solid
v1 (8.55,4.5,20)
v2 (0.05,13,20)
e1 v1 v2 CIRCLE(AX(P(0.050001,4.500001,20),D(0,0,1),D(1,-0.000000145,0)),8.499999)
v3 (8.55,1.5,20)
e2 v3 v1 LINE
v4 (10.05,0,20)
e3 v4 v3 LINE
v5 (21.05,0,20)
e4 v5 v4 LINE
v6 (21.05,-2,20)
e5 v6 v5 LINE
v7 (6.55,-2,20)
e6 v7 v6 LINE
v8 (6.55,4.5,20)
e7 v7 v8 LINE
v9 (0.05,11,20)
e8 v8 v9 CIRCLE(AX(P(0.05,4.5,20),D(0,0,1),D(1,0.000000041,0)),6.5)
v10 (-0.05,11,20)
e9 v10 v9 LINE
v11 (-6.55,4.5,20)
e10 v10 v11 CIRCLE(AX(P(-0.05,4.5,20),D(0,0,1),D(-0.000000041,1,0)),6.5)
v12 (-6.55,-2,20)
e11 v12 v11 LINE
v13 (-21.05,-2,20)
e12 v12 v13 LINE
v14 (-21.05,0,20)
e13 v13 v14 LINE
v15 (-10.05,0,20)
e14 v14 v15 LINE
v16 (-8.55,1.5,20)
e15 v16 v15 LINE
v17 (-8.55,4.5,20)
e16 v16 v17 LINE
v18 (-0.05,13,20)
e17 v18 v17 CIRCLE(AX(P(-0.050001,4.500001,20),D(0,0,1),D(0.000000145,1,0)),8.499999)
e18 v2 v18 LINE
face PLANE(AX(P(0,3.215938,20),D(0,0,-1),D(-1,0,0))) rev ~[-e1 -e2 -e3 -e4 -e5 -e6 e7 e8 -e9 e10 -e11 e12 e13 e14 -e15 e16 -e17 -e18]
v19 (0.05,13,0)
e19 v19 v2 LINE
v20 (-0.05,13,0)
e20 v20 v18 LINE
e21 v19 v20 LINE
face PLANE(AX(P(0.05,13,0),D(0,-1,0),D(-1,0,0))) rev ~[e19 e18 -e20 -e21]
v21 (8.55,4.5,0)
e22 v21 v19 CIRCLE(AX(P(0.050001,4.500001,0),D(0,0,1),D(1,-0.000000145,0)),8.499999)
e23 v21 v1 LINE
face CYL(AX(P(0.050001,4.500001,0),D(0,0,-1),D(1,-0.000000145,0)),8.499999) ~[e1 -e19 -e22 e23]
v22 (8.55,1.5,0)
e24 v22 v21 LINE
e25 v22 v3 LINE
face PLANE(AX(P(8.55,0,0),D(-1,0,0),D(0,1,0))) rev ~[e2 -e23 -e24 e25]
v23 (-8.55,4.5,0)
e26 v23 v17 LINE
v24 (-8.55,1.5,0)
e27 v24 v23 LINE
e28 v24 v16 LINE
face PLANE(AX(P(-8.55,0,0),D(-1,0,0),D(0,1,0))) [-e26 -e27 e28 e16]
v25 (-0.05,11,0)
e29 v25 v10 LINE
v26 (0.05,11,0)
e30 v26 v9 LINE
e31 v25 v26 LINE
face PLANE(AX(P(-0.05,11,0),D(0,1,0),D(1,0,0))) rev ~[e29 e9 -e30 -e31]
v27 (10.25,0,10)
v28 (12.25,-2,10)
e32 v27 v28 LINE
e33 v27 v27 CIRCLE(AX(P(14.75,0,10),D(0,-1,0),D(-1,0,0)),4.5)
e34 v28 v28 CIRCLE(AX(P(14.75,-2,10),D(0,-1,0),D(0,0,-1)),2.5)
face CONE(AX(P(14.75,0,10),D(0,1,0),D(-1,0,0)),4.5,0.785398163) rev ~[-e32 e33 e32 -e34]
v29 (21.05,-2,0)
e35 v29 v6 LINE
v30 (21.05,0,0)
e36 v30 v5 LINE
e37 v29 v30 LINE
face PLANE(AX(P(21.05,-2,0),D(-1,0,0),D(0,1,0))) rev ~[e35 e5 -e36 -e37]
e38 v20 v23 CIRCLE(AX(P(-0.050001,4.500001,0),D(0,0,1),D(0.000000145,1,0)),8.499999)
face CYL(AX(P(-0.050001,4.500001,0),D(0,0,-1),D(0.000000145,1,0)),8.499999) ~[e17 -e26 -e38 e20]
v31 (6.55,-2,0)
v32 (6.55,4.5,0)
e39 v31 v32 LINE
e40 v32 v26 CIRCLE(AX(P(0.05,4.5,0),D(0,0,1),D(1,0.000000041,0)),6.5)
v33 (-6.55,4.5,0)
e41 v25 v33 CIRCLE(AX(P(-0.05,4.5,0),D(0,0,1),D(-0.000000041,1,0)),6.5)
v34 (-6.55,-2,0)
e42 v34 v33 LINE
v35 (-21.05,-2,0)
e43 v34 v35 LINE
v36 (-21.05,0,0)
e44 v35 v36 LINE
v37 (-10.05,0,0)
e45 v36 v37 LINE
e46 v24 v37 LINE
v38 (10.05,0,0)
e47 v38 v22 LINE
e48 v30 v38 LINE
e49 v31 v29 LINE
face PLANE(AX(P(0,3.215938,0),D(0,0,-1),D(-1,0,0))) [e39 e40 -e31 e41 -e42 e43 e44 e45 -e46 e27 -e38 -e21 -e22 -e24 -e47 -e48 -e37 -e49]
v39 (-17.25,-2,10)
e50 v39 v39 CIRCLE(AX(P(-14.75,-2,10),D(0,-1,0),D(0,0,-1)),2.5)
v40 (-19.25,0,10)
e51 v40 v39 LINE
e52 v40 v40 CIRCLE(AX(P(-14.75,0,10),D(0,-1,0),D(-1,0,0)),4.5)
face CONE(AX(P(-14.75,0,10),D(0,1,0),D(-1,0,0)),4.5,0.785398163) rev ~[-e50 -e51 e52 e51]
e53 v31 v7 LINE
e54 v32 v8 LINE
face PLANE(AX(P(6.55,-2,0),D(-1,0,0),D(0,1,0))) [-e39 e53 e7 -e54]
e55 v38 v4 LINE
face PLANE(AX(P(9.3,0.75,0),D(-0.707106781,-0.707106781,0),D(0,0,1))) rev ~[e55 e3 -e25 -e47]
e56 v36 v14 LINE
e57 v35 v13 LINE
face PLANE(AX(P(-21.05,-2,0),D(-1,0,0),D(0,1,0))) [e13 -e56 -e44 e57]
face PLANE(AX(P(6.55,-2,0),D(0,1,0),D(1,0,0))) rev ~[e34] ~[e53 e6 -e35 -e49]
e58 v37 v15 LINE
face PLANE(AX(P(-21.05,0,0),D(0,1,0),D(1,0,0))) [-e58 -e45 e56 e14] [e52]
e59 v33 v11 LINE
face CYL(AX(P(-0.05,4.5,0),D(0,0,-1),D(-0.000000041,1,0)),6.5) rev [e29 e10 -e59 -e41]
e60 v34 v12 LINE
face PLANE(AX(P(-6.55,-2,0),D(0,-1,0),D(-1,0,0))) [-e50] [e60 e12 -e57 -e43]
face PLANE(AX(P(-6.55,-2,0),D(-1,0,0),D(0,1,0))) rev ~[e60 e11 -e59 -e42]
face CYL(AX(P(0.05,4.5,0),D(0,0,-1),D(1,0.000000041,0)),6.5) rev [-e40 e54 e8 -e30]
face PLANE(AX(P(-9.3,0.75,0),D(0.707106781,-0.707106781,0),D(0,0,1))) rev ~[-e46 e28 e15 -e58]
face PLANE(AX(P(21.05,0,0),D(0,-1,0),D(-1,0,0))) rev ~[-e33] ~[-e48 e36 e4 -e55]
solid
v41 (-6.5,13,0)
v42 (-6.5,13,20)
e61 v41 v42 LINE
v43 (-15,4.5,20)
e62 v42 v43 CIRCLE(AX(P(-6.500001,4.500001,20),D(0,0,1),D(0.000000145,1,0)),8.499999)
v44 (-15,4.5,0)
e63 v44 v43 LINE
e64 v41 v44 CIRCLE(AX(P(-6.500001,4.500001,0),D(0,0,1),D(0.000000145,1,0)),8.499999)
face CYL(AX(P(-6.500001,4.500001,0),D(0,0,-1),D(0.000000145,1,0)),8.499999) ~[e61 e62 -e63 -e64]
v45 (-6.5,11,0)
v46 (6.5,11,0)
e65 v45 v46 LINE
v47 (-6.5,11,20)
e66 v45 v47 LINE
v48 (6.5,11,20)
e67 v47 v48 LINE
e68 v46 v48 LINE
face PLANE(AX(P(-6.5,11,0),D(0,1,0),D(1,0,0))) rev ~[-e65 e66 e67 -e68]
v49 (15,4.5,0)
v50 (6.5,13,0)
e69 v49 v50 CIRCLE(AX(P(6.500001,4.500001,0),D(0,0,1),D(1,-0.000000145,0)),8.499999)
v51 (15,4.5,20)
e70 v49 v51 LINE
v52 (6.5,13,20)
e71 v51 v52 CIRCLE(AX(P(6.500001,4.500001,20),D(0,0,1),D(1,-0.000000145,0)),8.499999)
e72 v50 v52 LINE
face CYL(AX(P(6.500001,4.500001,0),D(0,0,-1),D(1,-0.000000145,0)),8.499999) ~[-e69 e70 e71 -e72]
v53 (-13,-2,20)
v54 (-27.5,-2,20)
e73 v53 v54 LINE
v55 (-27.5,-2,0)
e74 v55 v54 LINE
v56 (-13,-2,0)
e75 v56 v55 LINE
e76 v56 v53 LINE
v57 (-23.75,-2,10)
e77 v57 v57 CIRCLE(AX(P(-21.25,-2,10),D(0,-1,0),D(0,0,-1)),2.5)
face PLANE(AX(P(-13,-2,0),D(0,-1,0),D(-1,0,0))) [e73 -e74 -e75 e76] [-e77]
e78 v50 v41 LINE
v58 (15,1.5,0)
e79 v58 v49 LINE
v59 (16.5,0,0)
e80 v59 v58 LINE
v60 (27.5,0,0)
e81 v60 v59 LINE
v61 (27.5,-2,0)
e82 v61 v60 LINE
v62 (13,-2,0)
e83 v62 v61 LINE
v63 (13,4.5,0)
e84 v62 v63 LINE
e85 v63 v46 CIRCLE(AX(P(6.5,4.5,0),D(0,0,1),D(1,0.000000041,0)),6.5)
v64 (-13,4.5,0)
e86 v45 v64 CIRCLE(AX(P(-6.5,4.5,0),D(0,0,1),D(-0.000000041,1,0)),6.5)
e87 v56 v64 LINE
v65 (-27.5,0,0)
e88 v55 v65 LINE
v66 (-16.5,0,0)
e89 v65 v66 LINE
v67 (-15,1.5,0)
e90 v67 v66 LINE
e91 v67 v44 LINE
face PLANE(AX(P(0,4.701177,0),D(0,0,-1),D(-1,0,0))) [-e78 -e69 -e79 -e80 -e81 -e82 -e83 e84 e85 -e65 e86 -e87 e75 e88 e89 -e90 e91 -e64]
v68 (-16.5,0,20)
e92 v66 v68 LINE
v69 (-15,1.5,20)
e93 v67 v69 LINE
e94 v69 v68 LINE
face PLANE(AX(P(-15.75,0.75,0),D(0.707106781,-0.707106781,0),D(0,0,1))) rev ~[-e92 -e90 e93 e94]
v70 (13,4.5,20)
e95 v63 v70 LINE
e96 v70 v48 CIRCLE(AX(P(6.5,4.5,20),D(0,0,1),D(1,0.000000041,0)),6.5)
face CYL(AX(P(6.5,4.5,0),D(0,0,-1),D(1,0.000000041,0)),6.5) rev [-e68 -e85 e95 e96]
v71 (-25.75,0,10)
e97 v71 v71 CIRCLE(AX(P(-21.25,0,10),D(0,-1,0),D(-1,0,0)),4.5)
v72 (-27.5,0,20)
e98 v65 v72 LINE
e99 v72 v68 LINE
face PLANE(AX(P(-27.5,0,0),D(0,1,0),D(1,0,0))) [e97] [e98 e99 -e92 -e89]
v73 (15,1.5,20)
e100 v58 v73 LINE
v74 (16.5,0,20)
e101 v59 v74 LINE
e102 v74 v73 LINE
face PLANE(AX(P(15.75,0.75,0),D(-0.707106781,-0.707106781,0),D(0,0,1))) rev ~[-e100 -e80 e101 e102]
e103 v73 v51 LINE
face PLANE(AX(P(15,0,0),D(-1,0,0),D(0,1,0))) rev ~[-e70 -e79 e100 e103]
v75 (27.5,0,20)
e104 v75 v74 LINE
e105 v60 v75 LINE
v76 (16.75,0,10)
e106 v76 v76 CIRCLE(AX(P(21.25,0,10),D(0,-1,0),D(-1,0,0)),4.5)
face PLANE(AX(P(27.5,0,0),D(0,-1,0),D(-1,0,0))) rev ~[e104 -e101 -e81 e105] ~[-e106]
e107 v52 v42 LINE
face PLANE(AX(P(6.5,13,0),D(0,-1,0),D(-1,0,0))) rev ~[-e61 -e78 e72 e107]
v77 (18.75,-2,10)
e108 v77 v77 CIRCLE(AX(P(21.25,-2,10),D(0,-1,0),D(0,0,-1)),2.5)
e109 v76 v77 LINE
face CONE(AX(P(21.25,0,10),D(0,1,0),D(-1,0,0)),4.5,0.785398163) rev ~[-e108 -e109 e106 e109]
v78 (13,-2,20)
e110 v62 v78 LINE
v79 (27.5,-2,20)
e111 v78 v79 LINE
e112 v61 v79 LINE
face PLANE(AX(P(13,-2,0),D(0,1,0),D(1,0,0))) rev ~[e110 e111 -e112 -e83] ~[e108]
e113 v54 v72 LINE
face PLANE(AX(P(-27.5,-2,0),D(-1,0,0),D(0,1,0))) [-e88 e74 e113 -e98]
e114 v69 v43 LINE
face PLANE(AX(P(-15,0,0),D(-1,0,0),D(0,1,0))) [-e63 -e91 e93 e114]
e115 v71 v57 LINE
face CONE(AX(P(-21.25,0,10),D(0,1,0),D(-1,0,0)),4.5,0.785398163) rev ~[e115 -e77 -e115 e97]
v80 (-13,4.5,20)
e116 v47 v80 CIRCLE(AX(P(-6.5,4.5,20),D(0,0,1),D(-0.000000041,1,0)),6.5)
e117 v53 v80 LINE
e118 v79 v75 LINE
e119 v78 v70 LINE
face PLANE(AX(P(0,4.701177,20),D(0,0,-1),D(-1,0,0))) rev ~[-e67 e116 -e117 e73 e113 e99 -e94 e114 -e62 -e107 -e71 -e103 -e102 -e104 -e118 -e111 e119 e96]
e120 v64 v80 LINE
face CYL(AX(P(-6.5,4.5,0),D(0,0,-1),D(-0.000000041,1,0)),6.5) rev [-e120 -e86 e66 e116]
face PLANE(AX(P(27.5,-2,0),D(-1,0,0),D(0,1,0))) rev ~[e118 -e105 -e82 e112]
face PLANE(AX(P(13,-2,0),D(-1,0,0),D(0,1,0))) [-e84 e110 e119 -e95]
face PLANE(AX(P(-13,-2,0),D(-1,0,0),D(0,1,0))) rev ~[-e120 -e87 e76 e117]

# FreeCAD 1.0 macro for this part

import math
import FreeCAD as App
import Part
import Sketcher
from FreeCAD import Vector
Q = App.Units.Quantity


def edges_at(feature, points):
    """Names of the edges that pass closest to the given points."""
    edges = feature.Shape.Edges
    near = lambda p: min(range(len(edges)), key=lambda i: edges[i].distToShape(Part.Vertex(*p))[0])
    return sorted({f"Edge{near(p) + 1}" for p in points})

doc = App.newDocument("Part")
body = doc.addObject("PartDesign::Body", "Body")

# Sketch on XY plane
sketch1 = body.newObject("Sketcher::SketchObject", "Sketch")
sketch1.AttachmentSupport = (doc.getObject("XY_Plane"), [""])
sketch1.MapMode = "FlatFace"
sketch1.addGeometry([
    Part.ArcOfCircle(Part.Circle(Vector(-6.5, 4.5, 0), Vector(0, 0, 1), 6.5), math.radians(90), math.radians(180)),  # 0
    Part.LineSegment(Vector(-6.5, 11, 0), Vector(6.5, 11, 0)),  # 1
    Part.ArcOfCircle(Part.Circle(Vector(6.5, 4.5, 0), Vector(0, 0, 1), 6.5), math.radians(0), math.radians(90)),  # 2
    Part.LineSegment(Vector(13, 4.5, 0), Vector(13, -2, 0)),  # 3
    Part.LineSegment(Vector(13, -2, 0), Vector(27.5, -2, 0)),  # 4
    Part.LineSegment(Vector(27.5, -2, 0), Vector(27.5, 0, 0)),  # 5
    Part.LineSegment(Vector(27.5, 0, 0), Vector(15, 0, 0)),  # 6
    Part.LineSegment(Vector(15, 0, 0), Vector(15, 4.5, 0)),  # 7
    Part.ArcOfCircle(Part.Circle(Vector(6.5, 4.5, 0), Vector(0, 0, 1), 8.5), math.radians(0), math.radians(90)),  # 8
    Part.LineSegment(Vector(6.5, 13, 0), Vector(-6.5, 13, 0)),  # 9
    Part.ArcOfCircle(Part.Circle(Vector(-6.5, 4.5, 0), Vector(0, 0, 1), 8.5), math.radians(90), math.radians(180)),  # 10
    Part.LineSegment(Vector(-15, 4.5, 0), Vector(-15, 0, 0)),  # 11
    Part.LineSegment(Vector(-15, 0, 0), Vector(-27.5, 0, 0)),  # 12
    Part.LineSegment(Vector(-27.5, 0, 0), Vector(-27.5, -2, 0)),  # 13
    Part.LineSegment(Vector(-27.5, -2, 0), Vector(-13, -2, 0)),  # 14
    Part.LineSegment(Vector(-13, -2, 0), Vector(-13, 4.5, 0)),  # 15
], False)
sketch1.addConstraint([
    Sketcher.Constraint("Tangent", 0, 1, 1, 1),
    Sketcher.Constraint("Tangent", 1, 2, 2, 2),
    Sketcher.Constraint("Tangent", 2, 1, 3, 1),
    Sketcher.Constraint("Coincident", 3, 2, 4, 1),
    Sketcher.Constraint("Coincident", 4, 2, 5, 1),
    Sketcher.Constraint("Coincident", 5, 2, 6, 1),
    Sketcher.Constraint("Coincident", 6, 2, 7, 1),
    Sketcher.Constraint("Tangent", 7, 2, 8, 1),
    Sketcher.Constraint("Tangent", 8, 2, 9, 1),
    Sketcher.Constraint("Tangent", 9, 2, 10, 1),
    Sketcher.Constraint("Tangent", 10, 2, 11, 1),
    Sketcher.Constraint("Coincident", 11, 2, 12, 1),
    Sketcher.Constraint("Coincident", 12, 2, 13, 1),
    Sketcher.Constraint("Coincident", 13, 2, 14, 1),
    Sketcher.Constraint("Coincident", 14, 2, 15, 1),
    Sketcher.Constraint("Tangent", 15, 2, 0, 2),
    Sketcher.Constraint("Horizontal", 1),
    Sketcher.Constraint("Vertical", 3),
    Sketcher.Constraint("Horizontal", 4),
    Sketcher.Constraint("Vertical", 5),
    Sketcher.Constraint("Horizontal", 6),
    Sketcher.Constraint("Vertical", 7),
    Sketcher.Constraint("Horizontal", 9),
    Sketcher.Constraint("Vertical", 11),
    Sketcher.Constraint("Horizontal", 12),
    Sketcher.Constraint("Vertical", 13),
    Sketcher.Constraint("Horizontal", 14),
    Sketcher.Constraint("Vertical", 15),
    Sketcher.Constraint("Coincident", 8, 3, 2, 3),
    Sketcher.Constraint("Coincident", 10, 3, 0, 3),
    Sketcher.Constraint("Equal", 0, 2),
    Sketcher.Constraint("Symmetric", 6, 2, 11, 2, -1, 1),
    Sketcher.Constraint("Symmetric", 5, 2, 12, 2, -2),
    Sketcher.Constraint("Horizontal", 4, 2, 13, 2),
    Sketcher.Constraint("Radius", 0, Q("6.5 mm")),
    Sketcher.Constraint("Radius", 8, Q("8.499999 mm")),
    Sketcher.Constraint("DistanceX", 1, 1, 1, 2, Q("13 mm")),
    Sketcher.Constraint("DistanceY", 5, 1, 5, 2, Q("2 mm")),
    Sketcher.Constraint("DistanceX", 4, 1, 4, 2, Q("14.5 mm")),
    Sketcher.Constraint("DistanceY", 3, 2, 3, 1, Q("6.5 mm")),
])
pad1 = body.newObject("PartDesign::Pad", "Pad")
pad1.Profile = sketch1
pad1.Length = 20

# Sketch on XZ plane
sketch2 = body.newObject("Sketcher::SketchObject", "Sketch001")
sketch2.AttachmentSupport = (doc.getObject("XZ_Plane"), [""])
sketch2.MapMode = "FlatFace"
sketch2.addGeometry([
    Part.Circle(Vector(-21.2, 10, 0), Vector(0, 0, 1), 2.5),
    Part.Circle(Vector(21.2, 10, 0), Vector(0, 0, 1), 2.5),
], False)
sketch2.addConstraint([
    Sketcher.Constraint("Equal", 0, 1),
    Sketcher.Constraint("Symmetric", 0, 3, 1, 3, -2),
    Sketcher.Constraint("Diameter", 0, Q("5 mm")),
    Sketcher.Constraint("DistanceY", -1, 1, 0, 3, Q("10 mm")),
    Sketcher.Constraint("DistanceX", 0, 3, 1, 3, Q("42.5 mm")),
])
doc.recompute()
hole = body.newObject("PartDesign::Hole", "Hole")
hole.Profile = sketch2
hole.ThreadType = "None"
hole.Diameter = 5
hole.DepthType = "Dimension"
hole.Depth = 25
hole.DrillPoint = "Flat"
hole.HoleCutType = "Countersink"
hole.HoleCutDiameter = 9
hole.HoleCutCountersinkAngle = 90
hole.Reversed = True
doc.recompute()

chamfer = body.newObject("PartDesign::Chamfer", "Chamfer")
chamfer.Base = (hole, edges_at(hole, [(15, 0, 10), (-15, 0, 10)]))
chamfer.Size = 1.5
body2 = doc.addObject("PartDesign::Body", "Body001")

# Sketch on XY plane
sketch3 = body2.newObject("Sketcher::SketchObject", "Sketch002")
sketch3.AttachmentSupport = (doc.getObject("XY_Plane001"), [""])
sketch3.MapMode = "FlatFace"
sketch3.addGeometry([
    Part.ArcOfCircle(Part.Circle(Vector(-0.05, 4.5, 0), Vector(0, 0, 1), 6.5), math.radians(90), math.radians(180)),  # 0
    Part.LineSegment(Vector(-0.05, 11, 0), Vector(0.05, 11, 0)),  # 1
    Part.ArcOfCircle(Part.Circle(Vector(0.05, 4.5, 0), Vector(0, 0, 1), 6.5), math.radians(0), math.radians(90)),  # 2
    Part.LineSegment(Vector(6.55, 4.5, 0), Vector(6.55, -2, 0)),  # 3
    Part.LineSegment(Vector(6.55, -2, 0), Vector(21.05, -2, 0)),  # 4
    Part.LineSegment(Vector(21.05, -2, 0), Vector(21.05, 0, 0)),  # 5
    Part.LineSegment(Vector(21.05, 0, 0), Vector(8.55, 0, 0)),  # 6
    Part.LineSegment(Vector(8.55, 0, 0), Vector(8.55, 4.5, 0)),  # 7
    Part.ArcOfCircle(Part.Circle(Vector(0.05, 4.5, 0), Vector(0, 0, 1), 8.5), math.radians(0), math.radians(90)),  # 8
    Part.LineSegment(Vector(0.05, 13, 0), Vector(-0.05, 13, 0)),  # 9
    Part.ArcOfCircle(Part.Circle(Vector(-0.05, 4.5, 0), Vector(0, 0, 1), 8.5), math.radians(90), math.radians(180)),  # 10
    Part.LineSegment(Vector(-8.55, 4.5, 0), Vector(-8.55, 0, 0)),  # 11
    Part.LineSegment(Vector(-8.55, 0, 0), Vector(-21.05, 0, 0)),  # 12
    Part.LineSegment(Vector(-21.05, 0, 0), Vector(-21.05, -2, 0)),  # 13
    Part.LineSegment(Vector(-21.05, -2, 0), Vector(-6.55, -2, 0)),  # 14
    Part.LineSegment(Vector(-6.55, -2, 0), Vector(-6.55, 4.5, 0)),  # 15
], False)
sketch3.addConstraint([
    Sketcher.Constraint("Tangent", 0, 1, 1, 1),
    Sketcher.Constraint("Tangent", 1, 2, 2, 2),
    Sketcher.Constraint("Tangent", 2, 1, 3, 1),
    Sketcher.Constraint("Coincident", 3, 2, 4, 1),
    Sketcher.Constraint("Coincident", 4, 2, 5, 1),
    Sketcher.Constraint("Coincident", 5, 2, 6, 1),
    Sketcher.Constraint("Coincident", 6, 2, 7, 1),
    Sketcher.Constraint("Tangent", 7, 2, 8, 1),
    Sketcher.Constraint("Tangent", 8, 2, 9, 1),
    Sketcher.Constraint("Tangent", 9, 2, 10, 1),
    Sketcher.Constraint("Tangent", 10, 2, 11, 1),
    Sketcher.Constraint("Coincident", 11, 2, 12, 1),
    Sketcher.Constraint("Coincident", 12, 2, 13, 1),
    Sketcher.Constraint("Coincident", 13, 2, 14, 1),
    Sketcher.Constraint("Coincident", 14, 2, 15, 1),
    Sketcher.Constraint("Tangent", 15, 2, 0, 2),
    Sketcher.Constraint("Horizontal", 1),
    Sketcher.Constraint("Vertical", 3),
    Sketcher.Constraint("Horizontal", 4),
    Sketcher.Constraint("Vertical", 5),
    Sketcher.Constraint("Horizontal", 6),
    Sketcher.Constraint("Vertical", 7),
    Sketcher.Constraint("Horizontal", 9),
    Sketcher.Constraint("Vertical", 11),
    Sketcher.Constraint("Horizontal", 12),
    Sketcher.Constraint("Vertical", 13),
    Sketcher.Constraint("Horizontal", 14),
    Sketcher.Constraint("Vertical", 15),
    Sketcher.Constraint("Coincident", 8, 3, 2, 3),
    Sketcher.Constraint("Coincident", 10, 3, 0, 3),
    Sketcher.Constraint("Equal", 0, 2),
    Sketcher.Constraint("Symmetric", 6, 2, 11, 2, -1, 1),
    Sketcher.Constraint("Symmetric", 5, 2, 12, 2, -2),
    Sketcher.Constraint("Horizontal", 4, 2, 13, 2),
    Sketcher.Constraint("Radius", 0, Q("6.5 mm")),
    Sketcher.Constraint("Radius", 8, Q("8.499999 mm")),
    Sketcher.Constraint("DistanceY", 5, 1, 5, 2, Q("2 mm")),
    Sketcher.Constraint("DistanceX", 1, 1, 1, 2, Q("0.1 mm")),
    Sketcher.Constraint("DistanceX", 4, 1, 4, 2, Q("14.5 mm")),
    Sketcher.Constraint("DistanceY", 3, 2, 3, 1, Q("6.5 mm")),
])
pad2 = body2.newObject("PartDesign::Pad", "Pad001")
pad2.Profile = sketch3
pad2.Length = 20

# Sketch on XZ plane
sketch4 = body2.newObject("Sketcher::SketchObject", "Sketch003")
sketch4.AttachmentSupport = (doc.getObject("XZ_Plane001"), [""])
sketch4.MapMode = "FlatFace"
sketch4.addGeometry([
    Part.Circle(Vector(-14.8, 10, 0), Vector(0, 0, 1), 2.5),
    Part.Circle(Vector(14.8, 10, 0), Vector(0, 0, 1), 2.5),
], False)
sketch4.addConstraint([
    Sketcher.Constraint("Equal", 0, 1),
    Sketcher.Constraint("Symmetric", 0, 3, 1, 3, -2),
    Sketcher.Constraint("Diameter", 0, Q("5 mm")),
    Sketcher.Constraint("DistanceY", -1, 1, 0, 3, Q("10 mm")),
    Sketcher.Constraint("DistanceX", 0, 3, 1, 3, Q("29.5 mm")),
])
doc.recompute()
hole2 = body2.newObject("PartDesign::Hole", "Hole001")
hole2.Profile = sketch4
hole2.ThreadType = "None"
hole2.Diameter = 5
hole2.DepthType = "Dimension"
hole2.Depth = 25
hole2.DrillPoint = "Flat"
hole2.HoleCutType = "Countersink"
hole2.HoleCutDiameter = 9
hole2.HoleCutCountersinkAngle = 90
hole2.Reversed = True
doc.recompute()

chamfer2 = body2.newObject("PartDesign::Chamfer", "Chamfer001")
chamfer2.Base = (hole2, edges_at(hole2, [(8.55, 0, 10), (-8.55, 0, 10)]))
chamfer2.Size = 1.5

doc.recompute()
